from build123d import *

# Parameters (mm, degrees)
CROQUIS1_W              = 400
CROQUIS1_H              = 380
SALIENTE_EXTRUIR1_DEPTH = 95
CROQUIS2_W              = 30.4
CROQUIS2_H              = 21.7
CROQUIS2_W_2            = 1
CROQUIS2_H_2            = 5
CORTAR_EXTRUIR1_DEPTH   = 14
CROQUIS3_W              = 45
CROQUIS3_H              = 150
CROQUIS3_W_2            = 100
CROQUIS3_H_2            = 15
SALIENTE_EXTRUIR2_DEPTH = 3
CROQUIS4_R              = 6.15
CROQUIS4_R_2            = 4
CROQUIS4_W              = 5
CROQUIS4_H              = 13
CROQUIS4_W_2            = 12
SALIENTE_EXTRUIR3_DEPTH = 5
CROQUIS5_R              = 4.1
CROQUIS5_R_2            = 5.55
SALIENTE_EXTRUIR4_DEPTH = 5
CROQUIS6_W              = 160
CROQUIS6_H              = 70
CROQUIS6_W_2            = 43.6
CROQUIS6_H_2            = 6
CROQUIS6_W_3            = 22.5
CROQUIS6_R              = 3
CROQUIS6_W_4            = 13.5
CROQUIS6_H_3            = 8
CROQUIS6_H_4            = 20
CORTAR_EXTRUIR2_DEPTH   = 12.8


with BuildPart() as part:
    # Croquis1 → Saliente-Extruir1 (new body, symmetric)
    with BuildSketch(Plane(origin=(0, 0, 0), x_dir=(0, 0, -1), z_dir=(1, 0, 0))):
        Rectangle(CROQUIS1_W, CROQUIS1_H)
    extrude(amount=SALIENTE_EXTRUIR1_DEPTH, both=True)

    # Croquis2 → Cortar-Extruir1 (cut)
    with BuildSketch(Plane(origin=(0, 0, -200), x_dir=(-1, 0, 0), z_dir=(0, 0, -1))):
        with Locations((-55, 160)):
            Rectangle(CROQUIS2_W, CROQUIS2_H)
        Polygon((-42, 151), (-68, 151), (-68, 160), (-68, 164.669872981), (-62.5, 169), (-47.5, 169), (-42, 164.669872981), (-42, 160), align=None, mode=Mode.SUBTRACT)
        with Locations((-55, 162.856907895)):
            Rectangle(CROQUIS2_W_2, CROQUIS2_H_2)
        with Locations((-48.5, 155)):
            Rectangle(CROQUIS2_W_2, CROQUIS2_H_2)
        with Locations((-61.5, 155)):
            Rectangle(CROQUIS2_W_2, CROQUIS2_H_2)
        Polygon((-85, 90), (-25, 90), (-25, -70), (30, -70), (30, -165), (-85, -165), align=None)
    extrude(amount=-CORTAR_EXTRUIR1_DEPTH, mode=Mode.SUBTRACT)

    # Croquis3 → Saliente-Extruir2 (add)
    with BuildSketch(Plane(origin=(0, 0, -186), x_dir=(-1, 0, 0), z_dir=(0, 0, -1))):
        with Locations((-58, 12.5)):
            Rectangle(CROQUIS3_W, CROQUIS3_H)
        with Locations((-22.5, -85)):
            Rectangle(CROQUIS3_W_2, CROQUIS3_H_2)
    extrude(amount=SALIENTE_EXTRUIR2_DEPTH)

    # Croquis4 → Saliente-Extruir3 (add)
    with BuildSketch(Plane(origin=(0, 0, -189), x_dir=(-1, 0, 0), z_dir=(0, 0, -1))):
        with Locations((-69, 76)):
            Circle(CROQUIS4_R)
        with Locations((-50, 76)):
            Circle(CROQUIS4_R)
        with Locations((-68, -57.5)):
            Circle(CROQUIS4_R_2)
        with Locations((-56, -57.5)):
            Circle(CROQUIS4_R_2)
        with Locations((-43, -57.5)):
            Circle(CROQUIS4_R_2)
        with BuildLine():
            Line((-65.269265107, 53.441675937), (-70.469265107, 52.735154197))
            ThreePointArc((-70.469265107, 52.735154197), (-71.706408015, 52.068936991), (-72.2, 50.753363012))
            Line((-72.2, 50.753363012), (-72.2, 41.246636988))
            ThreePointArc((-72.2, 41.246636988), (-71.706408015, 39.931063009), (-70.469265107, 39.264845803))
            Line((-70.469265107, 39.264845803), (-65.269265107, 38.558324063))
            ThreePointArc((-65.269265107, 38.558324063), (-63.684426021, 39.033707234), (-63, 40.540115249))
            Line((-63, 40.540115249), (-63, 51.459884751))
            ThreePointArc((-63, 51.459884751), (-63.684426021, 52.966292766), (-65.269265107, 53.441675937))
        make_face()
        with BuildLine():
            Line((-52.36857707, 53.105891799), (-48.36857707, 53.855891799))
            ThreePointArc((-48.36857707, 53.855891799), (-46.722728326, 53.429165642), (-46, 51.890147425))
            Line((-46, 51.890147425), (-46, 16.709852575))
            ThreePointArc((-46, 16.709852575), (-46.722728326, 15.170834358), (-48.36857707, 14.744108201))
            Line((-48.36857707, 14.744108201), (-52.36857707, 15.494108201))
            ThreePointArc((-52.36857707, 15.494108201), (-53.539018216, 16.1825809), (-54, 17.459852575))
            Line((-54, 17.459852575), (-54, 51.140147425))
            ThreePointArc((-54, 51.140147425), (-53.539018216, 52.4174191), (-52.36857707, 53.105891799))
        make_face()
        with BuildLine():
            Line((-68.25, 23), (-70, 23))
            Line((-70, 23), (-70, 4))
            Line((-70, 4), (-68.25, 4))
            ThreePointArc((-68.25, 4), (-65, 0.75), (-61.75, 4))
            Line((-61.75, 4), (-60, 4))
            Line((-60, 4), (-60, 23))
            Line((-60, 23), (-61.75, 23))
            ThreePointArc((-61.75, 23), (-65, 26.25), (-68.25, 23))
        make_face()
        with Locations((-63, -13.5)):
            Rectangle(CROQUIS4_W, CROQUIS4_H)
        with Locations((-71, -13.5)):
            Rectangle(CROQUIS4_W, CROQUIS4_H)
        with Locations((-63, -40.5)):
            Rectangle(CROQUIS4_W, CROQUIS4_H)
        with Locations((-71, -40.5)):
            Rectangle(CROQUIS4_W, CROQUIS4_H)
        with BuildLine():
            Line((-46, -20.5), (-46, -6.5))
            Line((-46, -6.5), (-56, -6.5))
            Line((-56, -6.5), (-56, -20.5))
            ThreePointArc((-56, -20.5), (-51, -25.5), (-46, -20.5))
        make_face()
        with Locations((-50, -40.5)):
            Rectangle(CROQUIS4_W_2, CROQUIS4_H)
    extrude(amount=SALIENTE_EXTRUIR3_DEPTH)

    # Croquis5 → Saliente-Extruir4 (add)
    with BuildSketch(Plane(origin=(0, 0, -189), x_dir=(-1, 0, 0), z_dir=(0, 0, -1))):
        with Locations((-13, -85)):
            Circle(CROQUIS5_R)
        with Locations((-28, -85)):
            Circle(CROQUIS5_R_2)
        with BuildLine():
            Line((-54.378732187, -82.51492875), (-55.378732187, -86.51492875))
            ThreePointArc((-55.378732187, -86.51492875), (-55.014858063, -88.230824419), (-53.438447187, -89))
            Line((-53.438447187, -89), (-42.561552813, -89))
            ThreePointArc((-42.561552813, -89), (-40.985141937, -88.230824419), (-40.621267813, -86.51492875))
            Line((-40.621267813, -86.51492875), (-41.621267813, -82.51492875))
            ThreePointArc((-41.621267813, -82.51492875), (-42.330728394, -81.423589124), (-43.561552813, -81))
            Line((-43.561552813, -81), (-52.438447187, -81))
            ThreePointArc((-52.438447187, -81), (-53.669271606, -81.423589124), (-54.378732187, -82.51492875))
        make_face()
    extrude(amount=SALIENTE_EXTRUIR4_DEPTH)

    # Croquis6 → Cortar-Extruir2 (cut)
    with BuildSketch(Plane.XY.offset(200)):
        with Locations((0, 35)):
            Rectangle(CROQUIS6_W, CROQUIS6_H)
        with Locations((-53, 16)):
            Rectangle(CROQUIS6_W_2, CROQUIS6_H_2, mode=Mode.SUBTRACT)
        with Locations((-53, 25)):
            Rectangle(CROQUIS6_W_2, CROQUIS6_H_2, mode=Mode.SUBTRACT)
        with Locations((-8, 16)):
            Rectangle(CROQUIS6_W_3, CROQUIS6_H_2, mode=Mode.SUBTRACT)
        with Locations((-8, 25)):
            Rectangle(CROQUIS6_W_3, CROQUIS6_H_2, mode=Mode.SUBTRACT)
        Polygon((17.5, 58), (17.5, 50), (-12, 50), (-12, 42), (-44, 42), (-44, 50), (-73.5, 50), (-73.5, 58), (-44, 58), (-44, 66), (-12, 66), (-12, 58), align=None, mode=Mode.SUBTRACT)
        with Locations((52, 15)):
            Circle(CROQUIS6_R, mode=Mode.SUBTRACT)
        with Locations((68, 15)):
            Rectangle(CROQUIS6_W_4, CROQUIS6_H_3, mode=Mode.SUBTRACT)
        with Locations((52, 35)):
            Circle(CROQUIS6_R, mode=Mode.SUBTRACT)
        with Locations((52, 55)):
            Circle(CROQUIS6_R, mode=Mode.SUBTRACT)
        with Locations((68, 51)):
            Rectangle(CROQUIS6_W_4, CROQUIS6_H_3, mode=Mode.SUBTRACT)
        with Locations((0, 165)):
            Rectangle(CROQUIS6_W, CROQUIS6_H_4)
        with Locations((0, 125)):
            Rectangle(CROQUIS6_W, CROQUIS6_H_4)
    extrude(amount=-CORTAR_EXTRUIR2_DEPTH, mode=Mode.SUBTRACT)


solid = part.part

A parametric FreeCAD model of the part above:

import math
import FreeCAD as App
import Part
import Sketcher
Q = App.Units.Quantity


def add_polygon(sketch, points):
    """Adds a closed chain of lines whose ends are joined by coincident constraints."""
    first, n = sketch.GeometryCount, len(points)
    for a, b in zip(points, points[1:] + points[:1]):
        sketch.addGeometry(Part.LineSegment(App.Vector(*a, 0), App.Vector(*b, 0)), False)
    for i in range(n):
        sketch.addConstraint(Sketcher.Constraint("Coincident", first + i, 2, first + (i + 1) % n, 1))

doc = App.newDocument("Part")
body = doc.addObject("PartDesign::Body", "Body")

sketch1 = doc.addObject("Sketcher::SketchObject", "Sketch")
body.addObject(sketch1)
sketch1.AttachmentSupport = (doc.YZ_Plane, [""])
sketch1.MapMode = "FlatFace"
add_polygon(sketch1, [(190, 200), (-190, 200), (-190, -200), (190, -200)])
sketch1.addConstraint(Sketcher.Constraint("Horizontal", 0))
sketch1.addConstraint(Sketcher.Constraint("Vertical", 1))
sketch1.addConstraint(Sketcher.Constraint("Horizontal", 2))
sketch1.addConstraint(Sketcher.Constraint("Vertical", 3))
sketch1.addConstraint(Sketcher.Constraint("Symmetric", 0, 2, 2, 2, -1, 1))
sketch1.addConstraint(Sketcher.Constraint("DistanceX", 0, 2, 0, 1, Q("380 mm")))
sketch1.addConstraint(Sketcher.Constraint("DistanceY", 1, 2, 1, 1, Q("400 mm")))
pad1 = doc.addObject("PartDesign::Pad", "Pad")
body.addObject(pad1)
pad1.Profile = sketch1
pad1.Length = 190
pad1.Midplane = True

sketch2 = doc.addObject("Sketcher::SketchObject", "Sketch001")
body.addObject(sketch2)
sketch2.AttachmentSupport = (doc.XY_Plane, [""])
sketch2.MapMode = "FlatFace"
sketch2.AttachmentOffset = App.Placement(App.Vector(0, 0, -200), App.Rotation())
add_polygon(sketch2, [(70.2, 170.8), (70.2, 149.2), (39.8, 149.2), (39.8, 170.8)])
add_polygon(sketch2, [(42, 164.7), (42, 151), (68, 151), (68, 164.7), (62.5, 169), (47.5, 169)])
add_polygon(sketch2, [(55.5, 165.4), (55.5, 160.4), (54.5, 160.4), (54.5, 165.4)])
add_polygon(sketch2, [(49, 157.5), (49, 152.5), (48, 152.5), (48, 157.5)])
add_polygon(sketch2, [(62, 157.5), (62, 152.5), (61, 152.5), (61, 157.5)])
add_polygon(sketch2, [(25, 90), (85, 90), (85, -165), (-30, -165), (-30, -70), (25, -70)])
sketch2.addConstraint(Sketcher.Constraint("Vertical", 0))
sketch2.addConstraint(Sketcher.Constraint("Horizontal", 1))
sketch2.addConstraint(Sketcher.Constraint("Vertical", 2))
sketch2.addConstraint(Sketcher.Constraint("Horizontal", 3))
sketch2.addConstraint(Sketcher.Constraint("Vertical", 4))
sketch2.addConstraint(Sketcher.Constraint("Horizontal", 5))
sketch2.addConstraint(Sketcher.Constraint("Vertical", 6))
sketch2.addConstraint(Sketcher.Constraint("Horizontal", 8))
sketch2.addConstraint(Sketcher.Constraint("Vertical", 10))
sketch2.addConstraint(Sketcher.Constraint("Horizontal", 11))
sketch2.addConstraint(Sketcher.Constraint("Vertical", 12))
sketch2.addConstraint(Sketcher.Constraint("Horizontal", 13))
sketch2.addConstraint(Sketcher.Constraint("Vertical", 14))
sketch2.addConstraint(Sketcher.Constraint("Horizontal", 15))
sketch2.addConstraint(Sketcher.Constraint("Vertical", 16))
sketch2.addConstraint(Sketcher.Constraint("Horizontal", 17))
sketch2.addConstraint(Sketcher.Constraint("Vertical", 18))
sketch2.addConstraint(Sketcher.Constraint("Horizontal", 19))
sketch2.addConstraint(Sketcher.Constraint("Vertical", 20))
sketch2.addConstraint(Sketcher.Constraint("Horizontal", 21))
sketch2.addConstraint(Sketcher.Constraint("Horizontal", 22))
sketch2.addConstraint(Sketcher.Constraint("Vertical", 23))
sketch2.addConstraint(Sketcher.Constraint("Horizontal", 24))
sketch2.addConstraint(Sketcher.Constraint("Vertical", 25))
sketch2.addConstraint(Sketcher.Constraint("Horizontal", 26))
sketch2.addConstraint(Sketcher.Constraint("Vertical", 27))
sketch2.addConstraint(Sketcher.Constraint("Horizontal", 6, 2, 9, 2))
sketch2.addConstraint(Sketcher.Constraint("Horizontal", 15, 2, 18, 2))
sketch2.addConstraint(Sketcher.Constraint("Horizontal", 17, 2, 20, 2))
sketch2.addConstraint(Sketcher.Constraint("Equal", 13, 15))
sketch2.addConstraint(Sketcher.Constraint("Equal", 17, 19))
sketch2.addConstraint(Sketcher.Constraint("Equal", 12, 14))
sketch2.addConstraint(Sketcher.Constraint("Equal", 7, 9))
sketch2.addConstraint(Sketcher.Constraint("DistanceX", 5, 1, 5, 2, Q("26 mm")))
sketch2.addConstraint(Sketcher.Constraint("DistanceX", 8, 2, 8, 1, Q("15 mm")))
sketch2.addConstraint(Sketcher.Constraint("DistanceX", 11, 2, 11, 1, Q("1 mm")))
sketch2.addConstraint(Sketcher.Constraint("DistanceX", 22, 1, 22, 2, Q("60 mm")))
sketch2.addConstraint(Sketcher.Constraint("DistanceX", 24, 2, 24, 1, Q("115 mm")))
sketch2.addConstraint(Sketcher.Constraint("DistanceY", 10, 2, 10, 1, Q("5 mm")))
sketch2.addConstraint(Sketcher.Constraint("DistanceY", 23, 2, 23, 1, Q("255 mm")))
sketch2.addConstraint(Sketcher.Constraint("DistanceY", 25, 1, 25, 2, Q("95 mm")))
sketch2.addConstraint(Sketcher.Constraint("Distance", 7, Q("7 mm")))
sketch2.addConstraint(Sketcher.Constraint("DistanceX", 1, 2, 1, 1, Q("30.4 mm")))
sketch2.addConstraint(Sketcher.Constraint("DistanceY", 0, 2, 0, 1, Q("21.7 mm")))
sketch2.addConstraint(Sketcher.Constraint("DistanceX", -1, 1, 4, 2, Q("42 mm")))
sketch2.addConstraint(Sketcher.Constraint("DistanceY", -1, 1, 4, 2, Q("151 mm")))
sketch2.addConstraint(Sketcher.Constraint("DistanceY", -1, 1, 7, 2, Q("169 mm")))
sketch2.addConstraint(Sketcher.Constraint("DistanceX", -1, 1, 14, 2, Q("49 mm")))
sketch2.addConstraint(Sketcher.Constraint("DistanceX", -1, 1, 18, 2, Q("62 mm")))
sketch2.addConstraint(Sketcher.Constraint("DistanceX", -1, 1, 22, 2, Q("85 mm")))
sketch2.addConstraint(Sketcher.Constraint("DistanceY", -1, 1, 22, 2, Q("90 mm")))
sketch2.addConstraint(Sketcher.Constraint("DistanceX", 10, 2, 7, 2, Q("7 mm")))
sketch2.addConstraint(Sketcher.Constraint("DistanceX", -1, 1, 0, 2, Q("70.2 mm")))
sketch2.addConstraint(Sketcher.Constraint("DistanceY", -1, 1, 14, 2, Q("152.5 mm")))
sketch2.addConstraint(Sketcher.Constraint("DistanceY", -1, 1, 0, 2, Q("149.15 mm")))
sketch2.addConstraint(Sketcher.Constraint("DistanceY", -1, 1, 10, 2, Q("160.356908 mm")))
pocket1 = doc.addObject("PartDesign::Pocket", "Pocket")
body.addObject(pocket1)
pocket1.Profile = sketch2
pocket1.Length = 14
pocket1.Reversed = True

sketch3 = doc.addObject("Sketcher::SketchObject", "Sketch002")
body.addObject(sketch3)
sketch3.AttachmentSupport = (doc.XY_Plane, [""])
sketch3.MapMode = "FlatFace"
sketch3.AttachmentOffset = App.Placement(App.Vector(0, 0, -186), App.Rotation())
add_polygon(sketch3, [(80, 88), (80, -62), (36, -62), (36, 88)])
add_polygon(sketch3, [(72, -78), (72, -92), (-28, -92), (-28, -78)])
sketch3.addConstraint(Sketcher.Constraint("Vertical", 0))
sketch3.addConstraint(Sketcher.Constraint("Horizontal", 1))
sketch3.addConstraint(Sketcher.Constraint("Vertical", 2))
sketch3.addConstraint(Sketcher.Constraint("Horizontal", 3))
sketch3.addConstraint(Sketcher.Constraint("Vertical", 4))
sketch3.addConstraint(Sketcher.Constraint("Horizontal", 5))
sketch3.addConstraint(Sketcher.Constraint("Vertical", 6))
sketch3.addConstraint(Sketcher.Constraint("Horizontal", 7))
sketch3.addConstraint(Sketcher.Constraint("DistanceX", 1, 2, 1, 1, Q("45 mm")))
sketch3.addConstraint(Sketcher.Constraint("DistanceX", 5, 2, 5, 1, Q("100 mm")))
sketch3.addConstraint(Sketcher.Constraint("DistanceY", 0, 2, 0, 1, Q("150 mm")))
sketch3.addConstraint(Sketcher.Constraint("DistanceY", 4, 2, 4, 1, Q("15 mm")))
sketch3.addConstraint(Sketcher.Constraint("DistanceX", 4, 2, 0, 2, Q("8 mm")))
sketch3.addConstraint(Sketcher.Constraint("DistanceY", 4, 2, 0, 2, Q("30 mm")))
sketch3.addConstraint(Sketcher.Constraint("DistanceX", -1, 1, 0, 2, Q("80.5 mm")))
sketch3.addConstraint(Sketcher.Constraint("DistanceY", 0, 2, -1, 1, Q("62.5 mm")))
pad2 = doc.addObject("PartDesign::Pad", "Pad001")
body.addObject(pad2)
pad2.Profile = sketch3
pad2.Length = 3
pad2.Reversed = True

sketch4 = doc.addObject("Sketcher::SketchObject", "Sketch003")
body.addObject(sketch4)
sketch4.AttachmentSupport = (doc.XY_Plane, [""])
sketch4.MapMode = "FlatFace"
sketch4.AttachmentOffset = App.Placement(App.Vector(0, 0, -189), App.Rotation())
sketch4.addGeometry(Part.Circle(App.Vector(69, 76, 0), App.Vector(0, 0, 1), 6.2), False)
sketch4.addGeometry(Part.Circle(App.Vector(50, 76, 0), App.Vector(0, 0, 1), 6.2), False)
sketch4.addGeometry(Part.Circle(App.Vector(68, -57.5, 0), App.Vector(0, 0, 1), 4), False)
sketch4.addGeometry(Part.Circle(App.Vector(56, -57.5, 0), App.Vector(0, 0, 1), 4), False)
sketch4.addGeometry(Part.Circle(App.Vector(43, -57.5, 0), App.Vector(0, 0, 1), 4), False)
sketch4.addGeometry(Part.LineSegment(App.Vector(65.3, 53.4, 0), App.Vector(70.5, 52.7, 0)), False)
sketch4.addGeometry(Part.ArcOfCircle(Part.Circle(App.Vector(70.2, 50.8, 0), App.Vector(0, 0, 1), 2), math.radians(0), math.radians(82)), False)
sketch4.addGeometry(Part.LineSegment(App.Vector(72.2, 50.8, 0), App.Vector(72.2, 41.2, 0)), False)
sketch4.addGeometry(Part.ArcOfCircle(Part.Circle(App.Vector(70.2, 41.2, 0), App.Vector(0, 0, 1), 2), math.radians(-82), math.radians(0)), False)
sketch4.addGeometry(Part.LineSegment(App.Vector(70.5, 39.3, 0), App.Vector(65.3, 38.6, 0)), False)
sketch4.addGeometry(Part.ArcOfCircle(Part.Circle(App.Vector(65, 40.5, 0), App.Vector(0, 0, 1), 2), math.radians(180), math.radians(278)), False)
sketch4.addGeometry(Part.LineSegment(App.Vector(63, 40.5, 0), App.Vector(63, 51.5, 0)), False)
sketch4.addGeometry(Part.ArcOfCircle(Part.Circle(App.Vector(65, 51.5, 0), App.Vector(0, 0, 1), 2), math.radians(82), math.radians(180)), False)
sketch4.addGeometry(Part.LineSegment(App.Vector(48.4, 53.9, 0), App.Vector(52.4, 53.1, 0)), False)
sketch4.addGeometry(Part.ArcOfCircle(Part.Circle(App.Vector(52, 51.1, 0), App.Vector(0, 0, 1), 2), math.radians(0), math.radians(79)), False)
sketch4.addGeometry(Part.LineSegment(App.Vector(54, 51.1, 0), App.Vector(54, 17.5, 0)), False)
sketch4.addGeometry(Part.ArcOfCircle(Part.Circle(App.Vector(52, 17.5, 0), App.Vector(0, 0, 1), 2), math.radians(-79), math.radians(0)), False)
sketch4.addGeometry(Part.LineSegment(App.Vector(52.4, 15.5, 0), App.Vector(48.4, 14.7, 0)), False)
sketch4.addGeometry(Part.ArcOfCircle(Part.Circle(App.Vector(48, 16.7, 0), App.Vector(0, 0, 1), 2), math.radians(180), math.radians(281)), False)
sketch4.addGeometry(Part.LineSegment(App.Vector(46, 16.7, 0), App.Vector(46, 51.9, 0)), False)
sketch4.addGeometry(Part.ArcOfCircle(Part.Circle(App.Vector(48, 51.9, 0), App.Vector(0, 0, 1), 2), math.radians(79), math.radians(180)), False)
sketch4.addGeometry(Part.LineSegment(App.Vector(68.2, 23, 0), App.Vector(70, 23, 0)), False)
sketch4.addGeometry(Part.LineSegment(App.Vector(70, 23, 0), App.Vector(70, 4, 0)), False)
sketch4.addGeometry(Part.LineSegment(App.Vector(70, 4, 0), App.Vector(68.2, 4, 0)), False)
sketch4.addGeometry(Part.ArcOfCircle(Part.Circle(App.Vector(65, 4, 0), App.Vector(0, 0, 1), 3.2), math.radians(180), math.radians(360)), False)
sketch4.addGeometry(Part.LineSegment(App.Vector(61.8, 4, 0), App.Vector(60, 4, 0)), False)
sketch4.addGeometry(Part.LineSegment(App.Vector(60, 4, 0), App.Vector(60, 23, 0)), False)
sketch4.addGeometry(Part.LineSegment(App.Vector(60, 23, 0), App.Vector(61.8, 23, 0)), False)
sketch4.addGeometry(Part.ArcOfCircle(Part.Circle(App.Vector(65, 23, 0), App.Vector(0, 0, 1), 3.2), math.radians(0), math.radians(180)), False)
add_polygon(sketch4, [(65.5, -7), (65.5, -20), (60.5, -20), (60.5, -7)])
add_polygon(sketch4, [(73.5, -7), (73.5, -20), (68.5, -20), (68.5, -7)])
add_polygon(sketch4, [(65.5, -34), (65.5, -47), (60.5, -47), (60.5, -34)])
add_polygon(sketch4, [(73.5, -34), (73.5, -47), (68.5, -47), (68.5, -34)])
sketch4.addGeometry(Part.LineSegment(App.Vector(46, -20.5, 0), App.Vector(46, -6.5, 0)), False)
sketch4.addGeometry(Part.LineSegment(App.Vector(46, -6.5, 0), App.Vector(56, -6.5, 0)), False)
sketch4.addGeometry(Part.LineSegment(App.Vector(56, -6.5, 0), App.Vector(56, -20.5, 0)), False)
sketch4.addGeometry(Part.ArcOfCircle(Part.Circle(App.Vector(51, -20.5, 0), App.Vector(0, 0, 1), 5), math.radians(180), math.radians(360)), False)
add_polygon(sketch4, [(56, -34), (56, -47), (44, -47), (44, -34)])
sketch4.addConstraint(Sketcher.Constraint("Tangent", 5, 2, 6, 2))
sketch4.addConstraint(Sketcher.Constraint("Tangent", 6, 1, 7, 1))
sketch4.addConstraint(Sketcher.Constraint("Tangent", 7, 2, 8, 2))
sketch4.addConstraint(Sketcher.Constraint("Tangent", 8, 1, 9, 1))
sketch4.addConstraint(Sketcher.Constraint("Tangent", 9, 2, 10, 2))
sketch4.addConstraint(Sketcher.Constraint("Tangent", 10, 1, 11, 1))
sketch4.addConstraint(Sketcher.Constraint("Tangent", 11, 2, 12, 2))
sketch4.addConstraint(Sketcher.Constraint("Tangent", 12, 1, 5, 1))
sketch4.addConstraint(Sketcher.Constraint("Tangent", 13, 2, 14, 2))
sketch4.addConstraint(Sketcher.Constraint("Tangent", 14, 1, 15, 1))
sketch4.addConstraint(Sketcher.Constraint("Tangent", 15, 2, 16, 2))
sketch4.addConstraint(Sketcher.Constraint("Tangent", 16, 1, 17, 1))
sketch4.addConstraint(Sketcher.Constraint("Tangent", 17, 2, 18, 2))
sketch4.addConstraint(Sketcher.Constraint("Tangent", 18, 1, 19, 1))
sketch4.addConstraint(Sketcher.Constraint("Tangent", 19, 2, 20, 2))
sketch4.addConstraint(Sketcher.Constraint("Tangent", 20, 1, 13, 1))
sketch4.addConstraint(Sketcher.Constraint("Coincident", 21, 2, 22, 1))
sketch4.addConstraint(Sketcher.Constraint("Coincident", 22, 2, 23, 1))
sketch4.addConstraint(Sketcher.Constraint("Coincident", 23, 2, 24, 2))
sketch4.addConstraint(Sketcher.Constraint("Coincident", 24, 1, 25, 1))
sketch4.addConstraint(Sketcher.Constraint("Coincident", 25, 2, 26, 1))
sketch4.addConstraint(Sketcher.Constraint("Coincident", 26, 2, 27, 1))
sketch4.addConstraint(Sketcher.Constraint("Coincident", 27, 2, 28, 2))
sketch4.addConstraint(Sketcher.Constraint("Coincident", 28, 1, 21, 1))
sketch4.addConstraint(Sketcher.Constraint("Coincident", 45, 2, 46, 1))
sketch4.addConstraint(Sketcher.Constraint("Coincident", 46, 2, 47, 1))
sketch4.addConstraint(Sketcher.Constraint("Tangent", 47, 2, 48, 2))
sketch4.addConstraint(Sketcher.Constraint("Tangent", 48, 1, 45, 1))
sketch4.addConstraint(Sketcher.Constraint("Vertical", 7))
sketch4.addConstraint(Sketcher.Constraint("Vertical", 11))
sketch4.addConstraint(Sketcher.Constraint("Vertical", 15))
sketch4.addConstraint(Sketcher.Constraint("Vertical", 19))
sketch4.addConstraint(Sketcher.Constraint("Horizontal", 21))
sketch4.addConstraint(Sketcher.Constraint("Vertical", 22))
sketch4.addConstraint(Sketcher.Constraint("Horizontal", 23))
sketch4.addConstraint(Sketcher.Constraint("Horizontal", 25))
sketch4.addConstraint(Sketcher.Constraint("Vertical", 26))
sketch4.addConstraint(Sketcher.Constraint("Horizontal", 27))
sketch4.addConstraint(Sketcher.Constraint("Vertical", 29))
sketch4.addConstraint(Sketcher.Constraint("Horizontal", 30))
sketch4.addConstraint(Sketcher.Constraint("Vertical", 31))
sketch4.addConstraint(Sketcher.Constraint("Horizontal", 32))
sketch4.addConstraint(Sketcher.Constraint("Vertical", 33))
sketch4.addConstraint(Sketcher.Constraint("Horizontal", 34))
sketch4.addConstraint(Sketcher.Constraint("Vertical", 35))
sketch4.addConstraint(Sketcher.Constraint("Horizontal", 36))
sketch4.addConstraint(Sketcher.Constraint("Vertical", 37))
sketch4.addConstraint(Sketcher.Constraint("Horizontal", 38))
sketch4.addConstraint(Sketcher.Constraint("Vertical", 39))
sketch4.addConstraint(Sketcher.Constraint("Horizontal", 40))
sketch4.addConstraint(Sketcher.Constraint("Vertical", 41))
sketch4.addConstraint(Sketcher.Constraint("Horizontal", 42))
sketch4.addConstraint(Sketcher.Constraint("Vertical", 43))
sketch4.addConstraint(Sketcher.Constraint("Horizontal", 44))
sketch4.addConstraint(Sketcher.Constraint("Vertical", 45))
sketch4.addConstraint(Sketcher.Constraint("Horizontal", 46))
sketch4.addConstraint(Sketcher.Constraint("Vertical", 47))
sketch4.addConstraint(Sketcher.Constraint("Vertical", 49))
sketch4.addConstraint(Sketcher.Constraint("Horizontal", 50))
sketch4.addConstraint(Sketcher.Constraint("Vertical", 51))
sketch4.addConstraint(Sketcher.Constraint("Horizontal", 52))
sketch4.addConstraint(Sketcher.Constraint("Equal", 0, 1))
sketch4.addConstraint(Sketcher.Constraint("Equal", 2, 3))
sketch4.addConstraint(Sketcher.Constraint("Equal", 3, 4))
sketch4.addConstraint(Sketcher.Constraint("Equal", 6, 8))
sketch4.addConstraint(Sketcher.Constraint("Equal", 8, 10))
sketch4.addConstraint(Sketcher.Constraint("Equal", 10, 12))
sketch4.addConstraint(Sketcher.Constraint("Equal", 12, 14))
sketch4.addConstraint(Sketcher.Constraint("Equal", 14, 16))
sketch4.addConstraint(Sketcher.Constraint("Equal", 16, 18))
sketch4.addConstraint(Sketcher.Constraint("Equal", 18, 20))
sketch4.addConstraint(Sketcher.Constraint("Equal", 24, 28))
sketch4.addConstraint(Sketcher.Constraint("Horizontal", 0, 3, 1, 3))
sketch4.addConstraint(Sketcher.Constraint("Horizontal", 2, 3, 3, 3))
sketch4.addConstraint(Sketcher.Constraint("Horizontal", 3, 3, 4, 3))
sketch4.addConstraint(Sketcher.Constraint("Horizontal", 28, 3, 21, 2))
sketch4.addConstraint(Sketcher.Constraint("Horizontal", 24, 3, 22, 2))
sketch4.addConstraint(Sketcher.Constraint("Horizontal", 23, 2, 24, 1))
sketch4.addConstraint(Sketcher.Constraint("Horizontal", 21, 2, 26, 2))
sketch4.addConstraint(Sketcher.Constraint("Horizontal", 30, 2, 33, 2))
sketch4.addConstraint(Sketcher.Constraint("Horizontal", 32, 2, 35, 2))
sketch4.addConstraint(Sketcher.Constraint("Horizontal", 38, 2, 41, 2))
sketch4.addConstraint(Sketcher.Constraint("Horizontal", 40, 2, 43, 2))
sketch4.addConstraint(Sketcher.Constraint("Horizontal", 42, 2, 49, 2))
sketch4.addConstraint(Sketcher.Constraint("Horizontal", 44, 2, 51, 2))
sketch4.addConstraint(Sketcher.Constraint("Vertical", 12, 3, 24, 3))
sketch4.addConstraint(Sketcher.Constraint("Vertical", 24, 3, 28, 3))
sketch4.addConstraint(Sketcher.Constraint("Vertical", 5, 2, 8, 1))
sketch4.addConstraint(Sketcher.Constraint("Vertical", 13, 2, 16, 1))
sketch4.addConstraint(Sketcher.Constraint("Vertical", 32, 2, 37, 2))
sketch4.addConstraint(Sketcher.Constraint("Vertical", 31, 2, 38, 2))
sketch4.addConstraint(Sketcher.Constraint("Vertical", 36, 2, 41, 2))
sketch4.addConstraint(Sketcher.Constraint("Vertical", 35, 2, 42, 2))
sketch4.addConstraint(Sketcher.Constraint("Vertical", 19, 2, 45, 2))
sketch4.addConstraint(Sketcher.Constraint("Vertical", 3, 3, 46, 2))
sketch4.addConstraint(Sketcher.Constraint("Vertical", 47, 2, 49, 2))
sketch4.addConstraint(Sketcher.Constraint("Equal", 23, 25))
sketch4.addConstraint(Sketcher.Constraint("Equal", 32, 34))
sketch4.addConstraint(Sketcher.Constraint("Equal", 35, 37))
sketch4.addConstraint(Sketcher.Constraint("Diameter", 2, Q("8 mm")))
sketch4.addConstraint(Sketcher.Constraint("Radius", 6, Q("2 mm")))
sketch4.addConstraint(Sketcher.Constraint("Radius", 48, Q("5 mm")))
sketch4.addConstraint(Sketcher.Constraint("Diameter", 0, Q("12.3 mm")))
sketch4.addConstraint(Sketcher.Constraint("DistanceX", 30, 2, 30, 1, Q("5 mm")))
sketch4.addConstraint(Sketcher.Constraint("DistanceX", 50, 2, 50, 1, Q("12 mm")))
sketch4.addConstraint(Sketcher.Constraint("DistanceY", 22, 2, 22, 1, Q("19 mm")))
sketch4.addConstraint(Sketcher.Constraint("DistanceY", 29, 2, 29, 1, Q("13 mm")))
sketch4.addConstraint(Sketcher.Constraint("DistanceY", 45, 1, 45, 2, Q("14 mm")))
sketch4.addConstraint(Sketcher.Constraint("Radius", 24, Q("3.25 mm")))
sketch4.addConstraint(Sketcher.Constraint("DistanceX", -1, 1, 0, 3, Q("69 mm")))
sketch4.addConstraint(Sketcher.Constraint("DistanceY", -1, 1, 0, 3, Q("76 mm")))
sketch4.addConstraint(Sketcher.Constraint("DistanceX", -1, 1, 1, 3, Q("50 mm")))
sketch4.addConstraint(Sketcher.Constraint("DistanceX", -1, 1, 2, 3, Q("68 mm")))
sketch4.addConstraint(Sketcher.Constraint("DistanceX", -1, 1, 3, 3, Q("56 mm")))
sketch4.addConstraint(Sketcher.Constraint("DistanceX", -1, 1, 4, 3, Q("43 mm")))
sketch4.addConstraint(Sketcher.Constraint("DistanceX", -1, 1, 10, 3, Q("65 mm")))
sketch4.addConstraint(Sketcher.Constraint("DistanceX", -1, 1, 14, 3, Q("52 mm")))
sketch4.addConstraint(Sketcher.Constraint("DistanceY", -1, 1, 24, 3, Q("4 mm")))
sketch4.addConstraint(Sketcher.Constraint("DistanceX", -1, 1, 21, 2, Q("70 mm")))
sketch4.addConstraint(Sketcher.Constraint("DistanceY", 29, 2, -1, 1, Q("20 mm")))
sketch4.addConstraint(Sketcher.Constraint("DistanceY", 37, 2, -1, 1, Q("47 mm")))
sketch4.addConstraint(Sketcher.Constraint("DistanceY", 2, 3, -1, 1, Q("57.5 mm")))
sketch4.addConstraint(Sketcher.Constraint("DistanceX", -1, 1, 6, 3, Q("70.2 mm")))
sketch4.addConstraint(Sketcher.Constraint("DistanceY", 48, 3, -1, 1, Q("20.5 mm")))
sketch4.addConstraint(Sketcher.Constraint("DistanceX", -1, 1, 29, 2, Q("65.5 mm")))
sketch4.addConstraint(Sketcher.Constraint("DistanceX", -1, 1, 33, 2, Q("73.5 mm")))
sketch4.addConstraint(Sketcher.Constraint("DistanceY", 11, 1, 11, 2, Q("10.91977 mm")))
sketch4.addConstraint(Sketcher.Constraint("DistanceY", 7, 2, 7, 1, Q("9.506726 mm")))
sketch4.addConstraint(Sketcher.Constraint("DistanceY", 15, 2, 15, 1, Q("33.680295 mm")))
sketch4.addConstraint(Sketcher.Constraint("DistanceY", 19, 1, 19, 2, Q("35.180295 mm")))
sketch4.addConstraint(Sketcher.Constraint("DistanceY", -1, 1, 13, 2, Q("53.105892 mm")))
sketch4.addConstraint(Sketcher.Constraint("DistanceY", -1, 1, 6, 3, Q("50.753363 mm")))
pad3 = doc.addObject("PartDesign::Pad", "Pad002")
body.addObject(pad3)
pad3.Profile = sketch4
pad3.Length = 5
pad3.Reversed = True

sketch5 = doc.addObject("Sketcher::SketchObject", "Sketch004")
body.addObject(sketch5)
sketch5.AttachmentSupport = (doc.XY_Plane, [""])
sketch5.MapMode = "FlatFace"
sketch5.AttachmentOffset = App.Placement(App.Vector(0, 0, -189), App.Rotation())
sketch5.addGeometry(Part.Circle(App.Vector(13, -85, 0), App.Vector(0, 0, 1), 4.1), False)
sketch5.addGeometry(Part.Circle(App.Vector(28, -85, 0), App.Vector(0, 0, 1), 5.5), False)
sketch5.addGeometry(Part.LineSegment(App.Vector(54.4, -82.5, 0), App.Vector(55.4, -86.5, 0)), False)
sketch5.addGeometry(Part.ArcOfCircle(Part.Circle(App.Vector(53.4, -87, 0), App.Vector(0, 0, 1), 2), math.radians(-90), math.radians(14)), False)
sketch5.addGeometry(Part.LineSegment(App.Vector(53.4, -89, 0), App.Vector(42.6, -89, 0)), False)
sketch5.addGeometry(Part.ArcOfCircle(Part.Circle(App.Vector(42.6, -87, 0), App.Vector(0, 0, 1), 2), math.radians(166), math.radians(270)), False)
sketch5.addGeometry(Part.LineSegment(App.Vector(40.6, -86.5, 0), App.Vector(41.6, -82.5, 0)), False)
sketch5.addGeometry(Part.ArcOfCircle(Part.Circle(App.Vector(43.6, -83, 0), App.Vector(0, 0, 1), 2), math.radians(90), math.radians(166)), False)
sketch5.addGeometry(Part.LineSegment(App.Vector(43.6, -81, 0), App.Vector(52.4, -81, 0)), False)
sketch5.addGeometry(Part.ArcOfCircle(Part.Circle(App.Vector(52.4, -83, 0), App.Vector(0, 0, 1), 2), math.radians(14), math.radians(90)), False)
sketch5.addConstraint(Sketcher.Constraint("Tangent", 2, 2, 3, 2))
sketch5.addConstraint(Sketcher.Constraint("Tangent", 3, 1, 4, 1))
sketch5.addConstraint(Sketcher.Constraint("Tangent", 4, 2, 5, 2))
sketch5.addConstraint(Sketcher.Constraint("Tangent", 5, 1, 6, 1))
sketch5.addConstraint(Sketcher.Constraint("Tangent", 6, 2, 7, 2))
sketch5.addConstraint(Sketcher.Constraint("Tangent", 7, 1, 8, 1))
sketch5.addConstraint(Sketcher.Constraint("Tangent", 8, 2, 9, 2))
sketch5.addConstraint(Sketcher.Constraint("Tangent", 9, 1, 2, 1))
sketch5.addConstraint(Sketcher.Constraint("Horizontal", 4))
sketch5.addConstraint(Sketcher.Constraint("Horizontal", 8))
sketch5.addConstraint(Sketcher.Constraint("Equal", 3, 5))
sketch5.addConstraint(Sketcher.Constraint("Equal", 5, 7))
sketch5.addConstraint(Sketcher.Constraint("Equal", 7, 9))
sketch5.addConstraint(Sketcher.Constraint("Horizontal", 0, 3, 1, 3))
sketch5.addConstraint(Sketcher.Constraint("Horizontal", 2, 2, 5, 1))
sketch5.addConstraint(Sketcher.Constraint("Radius", 3, Q("2 mm")))
sketch5.addConstraint(Sketcher.Constraint("Diameter", 0, Q("8.2 mm")))
sketch5.addConstraint(Sketcher.Constraint("Diameter", 1, Q("11.1 mm")))
sketch5.addConstraint(Sketcher.Constraint("DistanceX", -1, 1, 0, 3, Q("13 mm")))
sketch5.addConstraint(Sketcher.Constraint("DistanceY", 0, 3, -1, 1, Q("85 mm")))
sketch5.addConstraint(Sketcher.Constraint("DistanceX", -1, 1, 1, 3, Q("28 mm")))
sketch5.addConstraint(Sketcher.Constraint("DistanceY", 3, 3, -1, 1, Q("87 mm")))
sketch5.addConstraint(Sketcher.Constraint("DistanceY", 7, 3, -1, 1, Q("83 mm")))
sketch5.addConstraint(Sketcher.Constraint("DistanceX", 5, 3, 7, 3, Q("1 mm")))
sketch5.addConstraint(Sketcher.Constraint("DistanceX", 4, 2, 4, 1, Q("10.876894 mm")))
sketch5.addConstraint(Sketcher.Constraint("DistanceX", -1, 1, 3, 3, Q("53.438447 mm")))
pad4 = doc.addObject("PartDesign::Pad", "Pad003")
body.addObject(pad4)
pad4.Profile = sketch5
pad4.Length = 5
pad4.Reversed = True

sketch6 = doc.addObject("Sketcher::SketchObject", "Sketch005")
body.addObject(sketch6)
sketch6.AttachmentSupport = (doc.XY_Plane, [""])
sketch6.MapMode = "FlatFace"
sketch6.AttachmentOffset = App.Placement(App.Vector(0, 0, 200), App.Rotation())
add_polygon(sketch6, [(-80, 70), (-80, 0), (80, 0), (80, 70)])
add_polygon(sketch6, [(-31.2, 13), (-74.8, 13), (-74.8, 19), (-31.2, 19)])
add_polygon(sketch6, [(3.2, 13), (-19.2, 13), (-19.2, 19), (3.2, 19)])
add_polygon(sketch6, [(-31.2, 22), (-74.8, 22), (-74.8, 28), (-31.2, 28)])
add_polygon(sketch6, [(3.2, 22), (-19.2, 22), (-19.2, 28), (3.2, 28)])
sketch6.addGeometry(Part.Circle(App.Vector(52, 15, 0), App.Vector(0, 0, 1), 3), False)
add_polygon(sketch6, [(74.8, 11), (61.2, 11), (61.2, 19), (74.8, 19)])
sketch6.addGeometry(Part.Circle(App.Vector(52, 35, 0), App.Vector(0, 0, 1), 3), False)
add_polygon(sketch6, [(-12, 58), (17.5, 58), (17.5, 50), (-12, 50), (-12, 42), (-44, 42), (-44, 50), (-73.5, 50), (-73.5, 58), (-44, 58), (-44, 66), (-12, 66)])
add_polygon(sketch6, [(74.8, 47), (61.2, 47), (61.2, 55), (74.8, 55)])
sketch6.addGeometry(Part.Circle(App.Vector(52, 55, 0), App.Vector(0, 0, 1), 3), False)
add_polygon(sketch6, [(-80, 175), (-80, 155), (80, 155), (80, 175)])
add_polygon(sketch6, [(-80, 135), (-80, 115), (80, 115), (80, 135)])
sketch6.addConstraint(Sketcher.Constraint("Vertical", 0))
sketch6.addConstraint(Sketcher.Constraint("Horizontal", 1))
sketch6.addConstraint(Sketcher.Constraint("Vertical", 2))
sketch6.addConstraint(Sketcher.Constraint("Horizontal", 3))
sketch6.addConstraint(Sketcher.Constraint("Horizontal", 4))
sketch6.addConstraint(Sketcher.Constraint("Vertical", 5))
sketch6.addConstraint(Sketcher.Constraint("Horizontal", 6))
sketch6.addConstraint(Sketcher.Constraint("Vertical", 7))
sketch6.addConstraint(Sketcher.Constraint("Horizontal", 8))
sketch6.addConstraint(Sketcher.Constraint("Vertical", 9))
sketch6.addConstraint(Sketcher.Constraint("Horizontal", 10))
sketch6.addConstraint(Sketcher.Constraint("Vertical", 11))
sketch6.addConstraint(Sketcher.Constraint("Horizontal", 12))
sketch6.addConstraint(Sketcher.Constraint("Vertical", 13))
sketch6.addConstraint(Sketcher.Constraint("Horizontal", 14))
sketch6.addConstraint(Sketcher.Constraint("Vertical", 15))
sketch6.addConstraint(Sketcher.Constraint("Horizontal", 16))
sketch6.addConstraint(Sketcher.Constraint("Vertical", 17))
sketch6.addConstraint(Sketcher.Constraint("Horizontal", 18))
sketch6.addConstraint(Sketcher.Constraint("Vertical", 19))
sketch6.addConstraint(Sketcher.Constraint("Horizontal", 21))
sketch6.addConstraint(Sketcher.Constraint("Vertical", 22))
sketch6.addConstraint(Sketcher.Constraint("Horizontal", 23))
sketch6.addConstraint(Sketcher.Constraint("Vertical", 24))
sketch6.addConstraint(Sketcher.Constraint("Horizontal", 26))
sketch6.addConstraint(Sketcher.Constraint("Vertical", 27))
sketch6.addConstraint(Sketcher.Constraint("Horizontal", 28))
sketch6.addConstraint(Sketcher.Constraint("Vertical", 29))
sketch6.addConstraint(Sketcher.Constraint("Horizontal", 30))
sketch6.addConstraint(Sketcher.Constraint("Vertical", 31))
sketch6.addConstraint(Sketcher.Constraint("Horizontal", 32))
sketch6.addConstraint(Sketcher.Constraint("Vertical", 33))
sketch6.addConstraint(Sketcher.Constraint("Horizontal", 34))
sketch6.addConstraint(Sketcher.Constraint("Vertical", 35))
sketch6.addConstraint(Sketcher.Constraint("Horizontal", 36))
sketch6.addConstraint(Sketcher.Constraint("Vertical", 37))
sketch6.addConstraint(Sketcher.Constraint("Horizontal", 38))
sketch6.addConstraint(Sketcher.Constraint("Vertical", 39))
sketch6.addConstraint(Sketcher.Constraint("Horizontal", 40))
sketch6.addConstraint(Sketcher.Constraint("Vertical", 41))
sketch6.addConstraint(Sketcher.Constraint("Vertical", 43))
sketch6.addConstraint(Sketcher.Constraint("Horizontal", 44))
sketch6.addConstraint(Sketcher.Constraint("Vertical", 45))
sketch6.addConstraint(Sketcher.Constraint("Horizontal", 46))
sketch6.addConstraint(Sketcher.Constraint("Vertical", 47))
sketch6.addConstraint(Sketcher.Constraint("Horizontal", 48))
sketch6.addConstraint(Sketcher.Constraint("Vertical", 49))
sketch6.addConstraint(Sketcher.Constraint("Horizontal", 50))
sketch6.addConstraint(Sketcher.Constraint("Equal", 20, 25))
sketch6.addConstraint(Sketcher.Constraint("Equal", 25, 42))
sketch6.addConstraint(Sketcher.Constraint("Symmetric", 0, 2, 1, 2, -1, 1))
sketch6.addConstraint(Sketcher.Constraint("Horizontal", 7, 2, 8, 2))
sketch6.addConstraint(Sketcher.Constraint("Horizontal", 6, 2, 9, 2))
sketch6.addConstraint(Sketcher.Constraint("Horizontal", 15, 2, 16, 2))
sketch6.addConstraint(Sketcher.Constraint("Horizontal", 14, 2, 17, 2))
sketch6.addConstraint(Sketcher.Constraint("Horizontal", 10, 2, 22, 2))
sketch6.addConstraint(Sketcher.Constraint("Horizontal", 28, 2, 31, 2))
sketch6.addConstraint(Sketcher.Constraint("Horizontal", 26, 2, 33, 2))
sketch6.addConstraint(Sketcher.Constraint("Horizontal", 42, 3, 39, 2))
sketch6.addConstraint(Sketcher.Constraint("Vertical", 20, 3, 25, 3))
sketch6.addConstraint(Sketcher.Constraint("Vertical", 25, 3, 42, 3))
sketch6.addConstraint(Sketcher.Constraint("Vertical", 5, 2, 12, 2))
sketch6.addConstraint(Sketcher.Constraint("Vertical", 7, 2, 14, 2))
sketch6.addConstraint(Sketcher.Constraint("Vertical", 9, 2, 16, 2))
sketch6.addConstraint(Sketcher.Constraint("Vertical", 11, 2, 18, 2))
sketch6.addConstraint(Sketcher.Constraint("Vertical", 31, 2, 34, 2))
sketch6.addConstraint(Sketcher.Constraint("Vertical", 29, 2, 36, 2))
sketch6.addConstraint(Sketcher.Constraint("Vertical", 22, 2, 38, 2))
sketch6.addConstraint(Sketcher.Constraint("Vertical", 24, 2, 40, 2))
sketch6.addConstraint(Sketcher.Constraint("Vertical", 3, 2, 43, 2))
sketch6.addConstraint(Sketcher.Constraint("Vertical", 2, 2, 44, 2))
sketch6.addConstraint(Sketcher.Constraint("Vertical", 46, 2, 47, 2))
sketch6.addConstraint(Sketcher.Constraint("Vertical", 45, 2, 48, 2))
sketch6.addConstraint(Sketcher.Constraint("Equal", 28, 32))
sketch6.addConstraint(Sketcher.Constraint("Equal", 11, 13))
sketch6.addConstraint(Sketcher.Constraint("Equal", 24, 27))
sketch6.addConstraint(Sketcher.Constraint("Equal", 27, 29))
sketch6.addConstraint(Sketcher.Constraint("Equal", 33, 35))
sketch6.addConstraint(Sketcher.Constraint("Equal", 37, 39))
sketch6.addConstraint(Sketcher.Constraint("Equal", 45, 47))
sketch6.addConstraint(Sketcher.Constraint("Diameter", 20, Q("6 mm")))
sketch6.addConstraint(Sketcher.Constraint("DistanceX", 1, 1, 1, 2, Q("160 mm")))
sketch6.addConstraint(Sketcher.Constraint("DistanceX", 30, 2, 30, 1, Q("32 mm")))
sketch6.addConstraint(Sketcher.Constraint("DistanceY", 0, 2, 0, 1, Q("70 mm")))
sketch6.addConstraint(Sketcher.Constraint("DistanceY", 5, 1, 5, 2, Q("6 mm")))
sketch6.addConstraint(Sketcher.Constraint("DistanceY", 22, 1, 22, 2, Q("8 mm")))
sketch6.addConstraint(Sketcher.Constraint("DistanceY", 43, 2, 43, 1, Q("20 mm")))
sketch6.addConstraint(Sketcher.Constraint("DistanceX", 4, 2, 4, 1, Q("43.6 mm")))
sketch6.addConstraint(Sketcher.Constraint("DistanceX", 8, 2, 8, 1, Q("22.5 mm")))
sketch6.addConstraint(Sketcher.Constraint("DistanceX", 21, 2, 21, 1, Q("13.5 mm")))
sketch6.addConstraint(Sketcher.Constraint("DistanceX", 26, 1, 26, 2, Q("29.5 mm")))
sketch6.addConstraint(Sketcher.Constraint("DistanceX", -1, 1, 20, 3, Q("52 mm")))
sketch6.addConstraint(Sketcher.Constraint("DistanceY", -1, 1, 20, 3, Q("15 mm")))
sketch6.addConstraint(Sketcher.Constraint("DistanceY", -1, 1, 25, 3, Q("35 mm")))
sketch6.addConstraint(Sketcher.Constraint("DistanceY", -1, 1, 42, 3, Q("55 mm")))
sketch6.addConstraint(Sketcher.Constraint("DistanceY", -1, 1, 4, 2, Q("13 mm")))
sketch6.addConstraint(Sketcher.Constraint("DistanceY", -1, 1, 12, 2, Q("22 mm")))
sketch6.addConstraint(Sketcher.Constraint("DistanceY", -1, 1, 26, 2, Q("58 mm")))
sketch6.addConstraint(Sketcher.Constraint("DistanceX", 28, 2, -1, 1, Q("12 mm")))
sketch6.addConstraint(Sketcher.Constraint("DistanceY", -1, 1, 43, 2, Q("155 mm")))
sketch6.addConstraint(Sketcher.Constraint("DistanceY", -1, 1, 47, 2, Q("115 mm")))
sketch6.addConstraint(Sketcher.Constraint("DistanceX", 11, 2, 21, 2, Q("58 mm")))
sketch6.addConstraint(Sketcher.Constraint("DistanceX", 4, 2, -1, 1, Q("74.8 mm")))
sketch6.addConstraint(Sketcher.Constraint("DistanceX", 8, 2, -1, 1, Q("19.25 mm")))
pocket2 = doc.addObject("PartDesign::Pocket", "Pocket001")
body.addObject(pocket2)
pocket2.Profile = sketch6
pocket2.Length = 12.8

doc.recompute()
